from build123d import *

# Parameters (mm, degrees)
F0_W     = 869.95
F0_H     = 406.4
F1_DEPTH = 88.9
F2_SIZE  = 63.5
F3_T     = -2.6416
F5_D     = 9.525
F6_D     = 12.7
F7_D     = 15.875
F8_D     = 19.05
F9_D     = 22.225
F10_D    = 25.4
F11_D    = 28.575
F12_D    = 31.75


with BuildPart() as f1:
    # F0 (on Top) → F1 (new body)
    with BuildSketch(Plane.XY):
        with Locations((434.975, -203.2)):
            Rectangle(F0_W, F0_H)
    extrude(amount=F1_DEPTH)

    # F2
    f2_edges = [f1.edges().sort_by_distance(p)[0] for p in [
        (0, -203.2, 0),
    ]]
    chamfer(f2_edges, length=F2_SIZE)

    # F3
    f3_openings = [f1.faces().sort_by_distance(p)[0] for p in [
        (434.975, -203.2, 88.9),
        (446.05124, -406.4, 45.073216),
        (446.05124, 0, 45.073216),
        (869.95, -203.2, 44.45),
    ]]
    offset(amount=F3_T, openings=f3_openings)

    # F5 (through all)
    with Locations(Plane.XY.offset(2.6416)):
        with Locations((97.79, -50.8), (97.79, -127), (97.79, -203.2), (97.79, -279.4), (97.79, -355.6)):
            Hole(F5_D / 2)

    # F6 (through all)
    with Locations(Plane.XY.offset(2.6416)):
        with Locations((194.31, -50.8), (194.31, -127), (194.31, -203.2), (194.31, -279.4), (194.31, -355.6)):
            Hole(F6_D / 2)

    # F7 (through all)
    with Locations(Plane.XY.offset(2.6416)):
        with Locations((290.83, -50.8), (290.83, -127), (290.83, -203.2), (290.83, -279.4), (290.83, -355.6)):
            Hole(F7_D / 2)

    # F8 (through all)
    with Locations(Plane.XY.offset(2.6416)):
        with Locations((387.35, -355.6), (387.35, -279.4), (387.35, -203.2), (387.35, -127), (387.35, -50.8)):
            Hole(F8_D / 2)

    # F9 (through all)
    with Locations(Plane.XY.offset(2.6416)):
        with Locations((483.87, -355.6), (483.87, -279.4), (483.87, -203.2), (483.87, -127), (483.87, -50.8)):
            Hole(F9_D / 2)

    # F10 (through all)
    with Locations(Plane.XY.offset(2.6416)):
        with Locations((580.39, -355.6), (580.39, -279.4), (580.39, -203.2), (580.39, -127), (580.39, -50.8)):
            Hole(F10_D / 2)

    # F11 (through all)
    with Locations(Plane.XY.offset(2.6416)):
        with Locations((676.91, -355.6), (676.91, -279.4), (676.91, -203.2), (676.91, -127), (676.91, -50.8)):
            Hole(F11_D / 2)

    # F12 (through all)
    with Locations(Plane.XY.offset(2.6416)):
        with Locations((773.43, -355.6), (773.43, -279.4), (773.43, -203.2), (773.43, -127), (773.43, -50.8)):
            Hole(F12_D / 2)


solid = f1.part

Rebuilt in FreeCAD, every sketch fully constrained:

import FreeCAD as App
import Part
import Sketcher

V = App.Vector
Q = App.Units.Quantity


def edges_at(feature, points):
    """Names of the edges that pass closest to the given points."""
    edges = feature.Shape.Edges
    near = lambda p: min(range(len(edges)), key=lambda i: edges[i].distToShape(Part.Vertex(*p))[0])
    return sorted({f"Edge{near(p) + 1}" for p in points})


def faces_at(feature, points):
    """Names of the faces that lie closest to the given points."""
    faces = feature.Shape.Faces
    near = lambda p: min(range(len(faces)), key=lambda i: faces[i].distToShape(Part.Vertex(*p))[0])
    return sorted({f"Face{near(p) + 1}" for p in points})

doc = App.newDocument("Part")
body = doc.addObject("PartDesign::Body", "Body")

# Sketch on XY plane
sketch1 = doc.addObject("Sketcher::SketchObject", "Sketch")
body.addObject(sketch1)
sketch1.AttachmentSupport = (doc.XY_Plane, [""])
sketch1.MapMode = "FlatFace"
sketch1.addGeometry([
    Part.LineSegment(V(0, 0, 0), V(0, -406, 0)),
    Part.LineSegment(V(0, -406, 0), V(870, -406, 0)),
    Part.LineSegment(V(870, -406, 0), V(870, 0, 0)),
    Part.LineSegment(V(870, 0, 0), V(0, 0, 0)),
], False)
sketch1.addConstraint([
    Sketcher.Constraint("Coincident", 0, 2, 1, 1),
    Sketcher.Constraint("Coincident", 1, 2, 2, 1),
    Sketcher.Constraint("Coincident", 2, 2, 3, 1),
    Sketcher.Constraint("Coincident", 3, 2, 0, 1),
    Sketcher.Constraint("Vertical", 0),
    Sketcher.Constraint("Horizontal", 1),
    Sketcher.Constraint("Vertical", 2),
    Sketcher.Constraint("Horizontal", 3),
    Sketcher.Constraint("Coincident", 3, 2, -1, 1),
    Sketcher.Constraint("DistanceY", 0, 2, 0, 1, Q("16 in")),
    Sketcher.Constraint("DistanceX", 1, 1, 1, 2, Q("34.25 in")),
])
pad1 = doc.addObject("PartDesign::Pad", "Pad")
body.addObject(pad1)
pad1.Profile = sketch1
pad1.Length = Q("3.5 in")
doc.recompute()

chamfer = doc.addObject("PartDesign::Chamfer", "Chamfer")
body.addObject(chamfer)
chamfer.Base = (pad1, edges_at(pad1, [(0, -203.2, 0)]))
chamfer.Size = Q("2.5 in")
doc.recompute()

thickness = doc.addObject("PartDesign::Thickness", "Thickness")
body.addObject(thickness)
thickness.Base = (chamfer, faces_at(chamfer, [
    (434.975, -203.2, 88.9),
    (434.975, -406.4, 44.45),
    (434.975, 0, 44.45),
    (869.95, -203.2, 44.45),
]))
thickness.Value = Q("0.104 in")
thickness.Reversed = True
thickness.Join = "Arc"

# Sketch on XY plane
sketch2 = doc.addObject("Sketcher::SketchObject", "Sketch001")
body.addObject(sketch2)
sketch2.AttachmentSupport = (doc.XY_Plane, [""])
sketch2.MapMode = "FlatFace"
sketch2.AttachmentOffset = App.Placement(V(0, 0, 0.104 * 25.4), App.Rotation())
sketch2.addGeometry([
    Part.Circle(V(97.8, -50.8, 0), V(0, 0, 1), 4.8),  # 0
    Part.Circle(V(97.8, -127, 0), V(0, 0, 1), 4.8),  # 1
    Part.Circle(V(97.8, -203.2, 0), V(0, 0, 1), 4.8),  # 2
    Part.Circle(V(97.8, -279.4, 0), V(0, 0, 1), 4.8),  # 3
    Part.Circle(V(97.8, -355.6, 0), V(0, 0, 1), 4.8),  # 4
], False)
sketch2.addConstraint([
    Sketcher.Constraint("Equal", 0, 1),
    Sketcher.Constraint("Equal", 1, 2),
    Sketcher.Constraint("Equal", 2, 3),
    Sketcher.Constraint("Equal", 3, 4),
    Sketcher.Constraint("Vertical", 0, 3, 1, 3),
    Sketcher.Constraint("Vertical", 1, 3, 2, 3),
    Sketcher.Constraint("Vertical", 2, 3, 3, 3),
    Sketcher.Constraint("Vertical", 3, 3, 4, 3),
    Sketcher.Constraint("Diameter", 0, Q("0.375 in")),
    Sketcher.Constraint("DistanceY", 0, 3, -1, 1, Q("2 in")),
    Sketcher.Constraint("DistanceY", 1, 3, -1, 1, Q("5 in")),
    Sketcher.Constraint("DistanceY", 2, 3, -1, 1, Q("8 in")),
    Sketcher.Constraint("DistanceY", 3, 3, -1, 1, Q("11 in")),
    Sketcher.Constraint("DistanceY", 4, 3, -1, 1, Q("14 in")),
    Sketcher.Constraint("DistanceX", -1, 1, 0, 3, Q("3.85 in")),
])
doc.recompute()
hole = doc.addObject("PartDesign::Hole", "Hole")
body.addObject(hole)
hole.Profile = sketch2
hole.ThreadType = "None"
hole.Diameter = Q("0.375 in")
hole.DepthType = "ThroughAll"

# Sketch on XY plane
sketch3 = doc.addObject("Sketcher::SketchObject", "Sketch002")
body.addObject(sketch3)
sketch3.AttachmentSupport = (doc.XY_Plane, [""])
sketch3.MapMode = "FlatFace"
sketch3.AttachmentOffset = App.Placement(V(0, 0, 0.104 * 25.4), App.Rotation())
sketch3.addGeometry([
    Part.Circle(V(194, -51, 0), V(0, 0, 1), 6),  # 0
    Part.Circle(V(194, -127, 0), V(0, 0, 1), 6),  # 1
    Part.Circle(V(194, -203, 0), V(0, 0, 1), 6),  # 2
    Part.Circle(V(194, -279, 0), V(0, 0, 1), 6),  # 3
    Part.Circle(V(194, -356, 0), V(0, 0, 1), 6),  # 4
], False)
sketch3.addConstraint([
    Sketcher.Constraint("Equal", 0, 1),
    Sketcher.Constraint("Equal", 1, 2),
    Sketcher.Constraint("Equal", 2, 3),
    Sketcher.Constraint("Equal", 3, 4),
    Sketcher.Constraint("Vertical", 0, 3, 1, 3),
    Sketcher.Constraint("Vertical", 1, 3, 2, 3),
    Sketcher.Constraint("Vertical", 2, 3, 3, 3),
    Sketcher.Constraint("Vertical", 3, 3, 4, 3),
    Sketcher.Constraint("Diameter", 0, Q("0.5 in")),
    Sketcher.Constraint("DistanceY", 0, 3, -1, 1, Q("2 in")),
    Sketcher.Constraint("DistanceY", 1, 3, -1, 1, Q("5 in")),
    Sketcher.Constraint("DistanceY", 2, 3, -1, 1, Q("8 in")),
    Sketcher.Constraint("DistanceY", 3, 3, -1, 1, Q("11 in")),
    Sketcher.Constraint("DistanceY", 4, 3, -1, 1, Q("14 in")),
    Sketcher.Constraint("DistanceX", -1, 1, 0, 3, Q("7.65 in")),
])
doc.recompute()
hole2 = doc.addObject("PartDesign::Hole", "Hole001")
body.addObject(hole2)
hole2.Profile = sketch3
hole2.ThreadType = "None"
hole2.Diameter = Q("0.5 in")
hole2.DepthType = "ThroughAll"

# Sketch on XY plane
sketch4 = doc.addObject("Sketcher::SketchObject", "Sketch003")
body.addObject(sketch4)
sketch4.AttachmentSupport = (doc.XY_Plane, [""])
sketch4.MapMode = "FlatFace"
sketch4.AttachmentOffset = App.Placement(V(0, 0, 0.104 * 25.4), App.Rotation())
sketch4.addGeometry([
    Part.Circle(V(291, -51, 0), V(0, 0, 1), 8),  # 0
    Part.Circle(V(291, -127, 0), V(0, 0, 1), 8),  # 1
    Part.Circle(V(291, -203, 0), V(0, 0, 1), 8),  # 2
    Part.Circle(V(291, -279, 0), V(0, 0, 1), 8),  # 3
    Part.Circle(V(291, -356, 0), V(0, 0, 1), 8),  # 4
], False)
sketch4.addConstraint([
    Sketcher.Constraint("Equal", 0, 1),
    Sketcher.Constraint("Equal", 1, 2),
    Sketcher.Constraint("Equal", 2, 3),
    Sketcher.Constraint("Equal", 3, 4),
    Sketcher.Constraint("Vertical", 0, 3, 1, 3),
    Sketcher.Constraint("Vertical", 1, 3, 2, 3),
    Sketcher.Constraint("Vertical", 2, 3, 3, 3),
    Sketcher.Constraint("Vertical", 3, 3, 4, 3),
    Sketcher.Constraint("Diameter", 0, Q("0.625 in")),
    Sketcher.Constraint("DistanceY", 0, 3, -1, 1, Q("2 in")),
    Sketcher.Constraint("DistanceY", 1, 3, -1, 1, Q("5 in")),
    Sketcher.Constraint("DistanceY", 2, 3, -1, 1, Q("8 in")),
    Sketcher.Constraint("DistanceY", 3, 3, -1, 1, Q("11 in")),
    Sketcher.Constraint("DistanceY", 4, 3, -1, 1, Q("14 in")),
    Sketcher.Constraint("DistanceX", -1, 1, 0, 3, Q("11.45 in")),
])
doc.recompute()
hole3 = doc.addObject("PartDesign::Hole", "Hole002")
body.addObject(hole3)
hole3.Profile = sketch4
hole3.ThreadType = "None"
hole3.Diameter = Q("0.625 in")
hole3.DepthType = "ThroughAll"

# Sketch on XY plane
sketch5 = doc.addObject("Sketcher::SketchObject", "Sketch004")
body.addObject(sketch5)
sketch5.AttachmentSupport = (doc.XY_Plane, [""])
sketch5.MapMode = "FlatFace"
sketch5.AttachmentOffset = App.Placement(V(0, 0, 0.104 * 25.4), App.Rotation())
sketch5.addGeometry([
    Part.Circle(V(387, -356, 0), V(0, 0, 1), 10),  # 0
    Part.Circle(V(387, -279, 0), V(0, 0, 1), 10),  # 1
    Part.Circle(V(387, -203, 0), V(0, 0, 1), 10),  # 2
    Part.Circle(V(387, -127, 0), V(0, 0, 1), 10),  # 3
    Part.Circle(V(387, -51, 0), V(0, 0, 1), 10),  # 4
], False)
sketch5.addConstraint([
    Sketcher.Constraint("Equal", 0, 1),
    Sketcher.Constraint("Equal", 1, 2),
    Sketcher.Constraint("Equal", 2, 3),
    Sketcher.Constraint("Equal", 3, 4),
    Sketcher.Constraint("Vertical", 0, 3, 1, 3),
    Sketcher.Constraint("Vertical", 1, 3, 2, 3),
    Sketcher.Constraint("Vertical", 2, 3, 3, 3),
    Sketcher.Constraint("Vertical", 3, 3, 4, 3),
    Sketcher.Constraint("Diameter", 0, Q("0.75 in")),
    Sketcher.Constraint("DistanceY", 0, 3, -1, 1, Q("14 in")),
    Sketcher.Constraint("DistanceY", 1, 3, -1, 1, Q("11 in")),
    Sketcher.Constraint("DistanceY", 2, 3, -1, 1, Q("8 in")),
    Sketcher.Constraint("DistanceY", 3, 3, -1, 1, Q("5 in")),
    Sketcher.Constraint("DistanceY", 4, 3, -1, 1, Q("2 in")),
    Sketcher.Constraint("DistanceX", -1, 1, 0, 3, Q("15.25 in")),
])
doc.recompute()
hole4 = doc.addObject("PartDesign::Hole", "Hole003")
body.addObject(hole4)
hole4.Profile = sketch5
hole4.ThreadType = "None"
hole4.Diameter = Q("0.75 in")
hole4.DepthType = "ThroughAll"

# Sketch on XY plane
sketch6 = doc.addObject("Sketcher::SketchObject", "Sketch005")
body.addObject(sketch6)
sketch6.AttachmentSupport = (doc.XY_Plane, [""])
sketch6.MapMode = "FlatFace"
sketch6.AttachmentOffset = App.Placement(V(0, 0, 0.104 * 25.4), App.Rotation())
sketch6.addGeometry([
    Part.Circle(V(484, -356, 0), V(0, 0, 1), 11),  # 0
    Part.Circle(V(484, -279, 0), V(0, 0, 1), 11),  # 1
    Part.Circle(V(484, -203, 0), V(0, 0, 1), 11),  # 2
    Part.Circle(V(484, -127, 0), V(0, 0, 1), 11),  # 3
    Part.Circle(V(484, -51, 0), V(0, 0, 1), 11),  # 4
], False)
sketch6.addConstraint([
    Sketcher.Constraint("Equal", 0, 1),
    Sketcher.Constraint("Equal", 1, 2),
    Sketcher.Constraint("Equal", 2, 3),
    Sketcher.Constraint("Equal", 3, 4),
    Sketcher.Constraint("Vertical", 0, 3, 1, 3),
    Sketcher.Constraint("Vertical", 1, 3, 2, 3),
    Sketcher.Constraint("Vertical", 2, 3, 3, 3),
    Sketcher.Constraint("Vertical", 3, 3, 4, 3),
    Sketcher.Constraint("Diameter", 0, Q("0.875 in")),
    Sketcher.Constraint("DistanceY", 0, 3, -1, 1, Q("14 in")),
    Sketcher.Constraint("DistanceY", 1, 3, -1, 1, Q("11 in")),
    Sketcher.Constraint("DistanceY", 2, 3, -1, 1, Q("8 in")),
    Sketcher.Constraint("DistanceY", 3, 3, -1, 1, Q("5 in")),
    Sketcher.Constraint("DistanceY", 4, 3, -1, 1, Q("2 in")),
    Sketcher.Constraint("DistanceX", -1, 1, 0, 3, Q("19.05 in")),
])
doc.recompute()
hole5 = doc.addObject("PartDesign::Hole", "Hole004")
body.addObject(hole5)
hole5.Profile = sketch6
hole5.ThreadType = "None"
hole5.Diameter = Q("0.875 in")
hole5.DepthType = "ThroughAll"

# Sketch on XY plane
sketch7 = doc.addObject("Sketcher::SketchObject", "Sketch006")
body.addObject(sketch7)
sketch7.AttachmentSupport = (doc.XY_Plane, [""])
sketch7.MapMode = "FlatFace"
sketch7.AttachmentOffset = App.Placement(V(0, 0, 0.104 * 25.4), App.Rotation())
sketch7.addGeometry([
    Part.Circle(V(580, -356, 0), V(0, 0, 1), 13),  # 0
    Part.Circle(V(580, -279, 0), V(0, 0, 1), 13),  # 1
    Part.Circle(V(580, -203, 0), V(0, 0, 1), 13),  # 2
    Part.Circle(V(580, -127, 0), V(0, 0, 1), 13),  # 3
    Part.Circle(V(580, -51, 0), V(0, 0, 1), 13),  # 4
], False)
sketch7.addConstraint([
    Sketcher.Constraint("Equal", 0, 1),
    Sketcher.Constraint("Equal", 1, 2),
    Sketcher.Constraint("Equal", 2, 3),
    Sketcher.Constraint("Equal", 3, 4),
    Sketcher.Constraint("Vertical", 0, 3, 1, 3),
    Sketcher.Constraint("Vertical", 1, 3, 2, 3),
    Sketcher.Constraint("Vertical", 2, 3, 3, 3),
    Sketcher.Constraint("Vertical", 3, 3, 4, 3),
    Sketcher.Constraint("Diameter", 0, Q("1 in")),
    Sketcher.Constraint("DistanceY", 0, 3, -1, 1, Q("14 in")),
    Sketcher.Constraint("DistanceY", 1, 3, -1, 1, Q("11 in")),
    Sketcher.Constraint("DistanceY", 2, 3, -1, 1, Q("8 in")),
    Sketcher.Constraint("DistanceY", 3, 3, -1, 1, Q("5 in")),
    Sketcher.Constraint("DistanceY", 4, 3, -1, 1, Q("2 in")),
    Sketcher.Constraint("DistanceX", -1, 1, 0, 3, Q("22.85 in")),
])
doc.recompute()
hole6 = doc.addObject("PartDesign::Hole", "Hole005")
body.addObject(hole6)
hole6.Profile = sketch7
hole6.ThreadType = "None"
hole6.Diameter = Q("1 in")
hole6.DepthType = "ThroughAll"

# Sketch on XY plane
sketch8 = doc.addObject("Sketcher::SketchObject", "Sketch007")
body.addObject(sketch8)
sketch8.AttachmentSupport = (doc.XY_Plane, [""])
sketch8.MapMode = "FlatFace"
sketch8.AttachmentOffset = App.Placement(V(0, 0, 0.104 * 25.4), App.Rotation())
sketch8.addGeometry([
    Part.Circle(V(677, -356, 0), V(0, 0, 1), 14),  # 0
    Part.Circle(V(677, -279, 0), V(0, 0, 1), 14),  # 1
    Part.Circle(V(677, -203, 0), V(0, 0, 1), 14),  # 2
    Part.Circle(V(677, -127, 0), V(0, 0, 1), 14),  # 3
    Part.Circle(V(677, -51, 0), V(0, 0, 1), 14),  # 4
], False)
sketch8.addConstraint([
    Sketcher.Constraint("Equal", 0, 1),
    Sketcher.Constraint("Equal", 1, 2),
    Sketcher.Constraint("Equal", 2, 3),
    Sketcher.Constraint("Equal", 3, 4),
    Sketcher.Constraint("Vertical", 0, 3, 1, 3),
    Sketcher.Constraint("Vertical", 1, 3, 2, 3),
    Sketcher.Constraint("Vertical", 2, 3, 3, 3),
    Sketcher.Constraint("Vertical", 3, 3, 4, 3),
    Sketcher.Constraint("Diameter", 0, Q("1.125 in")),
    Sketcher.Constraint("DistanceY", 0, 3, -1, 1, Q("14 in")),
    Sketcher.Constraint("DistanceY", 1, 3, -1, 1, Q("11 in")),
    Sketcher.Constraint("DistanceY", 2, 3, -1, 1, Q("8 in")),
    Sketcher.Constraint("DistanceY", 3, 3, -1, 1, Q("5 in")),
    Sketcher.Constraint("DistanceY", 4, 3, -1, 1, Q("2 in")),
    Sketcher.Constraint("DistanceX", -1, 1, 0, 3, Q("26.65 in")),
])
doc.recompute()
hole7 = doc.addObject("PartDesign::Hole", "Hole006")
body.addObject(hole7)
hole7.Profile = sketch8
hole7.ThreadType = "None"
hole7.Diameter = Q("1.125 in")
hole7.DepthType = "ThroughAll"

# Sketch on XY plane
sketch9 = doc.addObject("Sketcher::SketchObject", "Sketch008")
body.addObject(sketch9)
sketch9.AttachmentSupport = (doc.XY_Plane, [""])
sketch9.MapMode = "FlatFace"
sketch9.AttachmentOffset = App.Placement(V(0, 0, 0.104 * 25.4), App.Rotation())
sketch9.addGeometry([
    Part.Circle(V(773, -356, 0), V(0, 0, 1), 16),  # 0
    Part.Circle(V(773, -279, 0), V(0, 0, 1), 16),  # 1
    Part.Circle(V(773, -203, 0), V(0, 0, 1), 16),  # 2
    Part.Circle(V(773, -127, 0), V(0, 0, 1), 16),  # 3
    Part.Circle(V(773, -51, 0), V(0, 0, 1), 16),  # 4
], False)
sketch9.addConstraint([
    Sketcher.Constraint("Equal", 0, 1),
    Sketcher.Constraint("Equal", 1, 2),
    Sketcher.Constraint("Equal", 2, 3),
    Sketcher.Constraint("Equal", 3, 4),
    Sketcher.Constraint("Vertical", 0, 3, 1, 3),
    Sketcher.Constraint("Vertical", 1, 3, 2, 3),
    Sketcher.Constraint("Vertical", 2, 3, 3, 3),
    Sketcher.Constraint("Vertical", 3, 3, 4, 3),
    Sketcher.Constraint("Diameter", 0, Q("1.25 in")),
    Sketcher.Constraint("DistanceY", 0, 3, -1, 1, Q("14 in")),
    Sketcher.Constraint("DistanceY", 1, 3, -1, 1, Q("11 in")),
    Sketcher.Constraint("DistanceY", 2, 3, -1, 1, Q("8 in")),
    Sketcher.Constraint("DistanceY", 3, 3, -1, 1, Q("5 in")),
    Sketcher.Constraint("DistanceY", 4, 3, -1, 1, Q("2 in")),
    Sketcher.Constraint("DistanceX", -1, 1, 0, 3, Q("30.45 in")),
])
doc.recompute()
hole8 = doc.addObject("PartDesign::Hole", "Hole007")
body.addObject(hole8)
hole8.Profile = sketch9
hole8.ThreadType = "None"
hole8.Diameter = Q("1.25 in")
hole8.DepthType = "ThroughAll"

doc.recompute()
